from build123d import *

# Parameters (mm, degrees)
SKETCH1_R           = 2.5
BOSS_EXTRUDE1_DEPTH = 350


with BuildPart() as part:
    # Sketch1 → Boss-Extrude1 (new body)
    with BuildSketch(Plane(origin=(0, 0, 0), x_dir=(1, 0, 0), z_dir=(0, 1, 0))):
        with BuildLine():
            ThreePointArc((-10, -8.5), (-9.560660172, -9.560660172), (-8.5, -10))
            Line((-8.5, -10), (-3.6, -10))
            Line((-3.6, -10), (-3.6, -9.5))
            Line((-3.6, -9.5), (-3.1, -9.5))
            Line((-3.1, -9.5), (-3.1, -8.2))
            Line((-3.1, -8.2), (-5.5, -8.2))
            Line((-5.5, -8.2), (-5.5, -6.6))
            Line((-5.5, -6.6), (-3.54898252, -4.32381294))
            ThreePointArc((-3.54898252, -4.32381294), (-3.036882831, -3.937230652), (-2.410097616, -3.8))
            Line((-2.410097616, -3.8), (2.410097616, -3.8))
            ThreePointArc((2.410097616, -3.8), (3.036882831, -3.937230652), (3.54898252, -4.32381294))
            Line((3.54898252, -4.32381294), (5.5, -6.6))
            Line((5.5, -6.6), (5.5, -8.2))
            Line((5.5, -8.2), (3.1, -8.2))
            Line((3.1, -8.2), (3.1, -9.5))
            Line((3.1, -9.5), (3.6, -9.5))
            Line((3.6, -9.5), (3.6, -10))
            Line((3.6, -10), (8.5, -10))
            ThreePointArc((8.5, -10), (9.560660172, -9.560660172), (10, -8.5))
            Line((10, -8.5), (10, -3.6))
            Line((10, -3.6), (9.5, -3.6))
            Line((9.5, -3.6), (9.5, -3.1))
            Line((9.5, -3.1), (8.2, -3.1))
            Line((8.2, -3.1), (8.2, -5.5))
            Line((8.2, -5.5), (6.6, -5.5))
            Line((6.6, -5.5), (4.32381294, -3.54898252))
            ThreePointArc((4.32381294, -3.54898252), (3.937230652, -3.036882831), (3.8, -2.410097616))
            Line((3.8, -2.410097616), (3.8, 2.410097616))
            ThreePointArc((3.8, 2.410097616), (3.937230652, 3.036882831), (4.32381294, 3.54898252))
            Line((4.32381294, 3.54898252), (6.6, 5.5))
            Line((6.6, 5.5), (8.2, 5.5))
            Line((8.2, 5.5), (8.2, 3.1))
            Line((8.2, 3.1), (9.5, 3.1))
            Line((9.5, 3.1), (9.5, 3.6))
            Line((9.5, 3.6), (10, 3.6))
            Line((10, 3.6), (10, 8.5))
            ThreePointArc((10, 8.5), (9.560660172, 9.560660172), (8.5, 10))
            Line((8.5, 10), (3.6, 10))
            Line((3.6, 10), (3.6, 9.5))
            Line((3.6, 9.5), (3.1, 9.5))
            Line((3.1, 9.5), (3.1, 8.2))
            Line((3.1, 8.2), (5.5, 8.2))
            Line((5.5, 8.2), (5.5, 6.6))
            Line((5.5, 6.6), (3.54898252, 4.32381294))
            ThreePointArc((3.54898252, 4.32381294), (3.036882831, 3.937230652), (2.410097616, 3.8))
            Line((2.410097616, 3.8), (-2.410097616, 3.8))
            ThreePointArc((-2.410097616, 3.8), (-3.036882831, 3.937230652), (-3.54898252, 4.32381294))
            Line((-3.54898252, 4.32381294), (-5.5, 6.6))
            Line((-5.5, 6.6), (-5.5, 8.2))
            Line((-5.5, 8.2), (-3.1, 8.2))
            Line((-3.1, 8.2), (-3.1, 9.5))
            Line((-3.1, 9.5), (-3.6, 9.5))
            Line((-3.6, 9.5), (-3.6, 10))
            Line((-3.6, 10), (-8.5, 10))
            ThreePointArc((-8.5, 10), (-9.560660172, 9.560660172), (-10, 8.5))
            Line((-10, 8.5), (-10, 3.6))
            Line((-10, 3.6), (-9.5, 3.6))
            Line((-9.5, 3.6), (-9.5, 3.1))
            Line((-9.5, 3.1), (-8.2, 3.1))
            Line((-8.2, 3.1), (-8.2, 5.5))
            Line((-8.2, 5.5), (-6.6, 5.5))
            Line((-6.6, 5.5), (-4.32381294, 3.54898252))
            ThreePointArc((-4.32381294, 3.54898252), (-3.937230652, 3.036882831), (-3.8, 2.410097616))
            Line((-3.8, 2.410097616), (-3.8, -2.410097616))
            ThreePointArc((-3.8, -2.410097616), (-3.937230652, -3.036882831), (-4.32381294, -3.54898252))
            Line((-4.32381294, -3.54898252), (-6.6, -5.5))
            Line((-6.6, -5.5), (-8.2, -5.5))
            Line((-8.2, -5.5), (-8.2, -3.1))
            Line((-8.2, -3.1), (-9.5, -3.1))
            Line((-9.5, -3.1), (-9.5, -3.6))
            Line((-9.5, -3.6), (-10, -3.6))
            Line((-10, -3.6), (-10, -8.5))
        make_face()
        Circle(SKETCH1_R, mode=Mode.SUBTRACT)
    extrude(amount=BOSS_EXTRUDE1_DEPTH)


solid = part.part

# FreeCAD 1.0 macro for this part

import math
import FreeCAD as App
import Part
import Sketcher
from FreeCAD import Vector
Q = App.Units.Quantity

doc = App.newDocument("Part")
params = doc.addObject("Spreadsheet::Sheet", "Params")
for row, (alias, value) in enumerate([
    ("sketch1_diameter", "5 mm"),
    ("sketch1_radius", "1.5 mm"),
    ("sketch1_width", "4.9 mm"),
    ("sketch1_width2", "0.5 mm"),
    ("sketch1_width3", "2.4 mm"),
    ("pad1_length", "350 mm"),
], start=1):
    params.set(f"A{row}", alias)
    params.set(f"B{row}", "=" + value)
    params.setAlias(f"B{row}", alias)

body = doc.addObject("PartDesign::Body", "Body")

sketch1 = body.newObject("Sketcher::SketchObject", "Sketch")
sketch1.AttachmentSupport = (doc.getObject("XZ_Plane"), [""])
sketch1.MapMode = "FlatFace"
sketch1.addGeometry([
    Part.ArcOfCircle(Part.Circle(Vector(-8.5, 8.5, 0), Vector(0, 0, 1), 1.5), math.radians(90), math.radians(180)),
    Part.LineSegment(Vector(-8.5, 10, 0), Vector(-3.6, 10, 0)),
    Part.LineSegment(Vector(-3.6, 10, 0), Vector(-3.6, 9.5, 0)),
    Part.LineSegment(Vector(-3.6, 9.5, 0), Vector(-3.1, 9.5, 0)),
    Part.LineSegment(Vector(-3.1, 9.5, 0), Vector(-3.1, 8.2, 0)),
    Part.LineSegment(Vector(-3.1, 8.2, 0), Vector(-5.5, 8.2, 0)),
    Part.LineSegment(Vector(-5.5, 8.2, 0), Vector(-5.5, 6.6, 0)),
    Part.LineSegment(Vector(-5.5, 6.6, 0), Vector(-3.5, 4.3, 0)),
    Part.ArcOfCircle(Part.Circle(Vector(-2.4, 5.3, 0), Vector(0, 0, 1), 1.5), math.radians(-139), math.radians(-90)),
    Part.LineSegment(Vector(-2.4, 3.8, 0), Vector(2.4, 3.8, 0)),
    Part.ArcOfCircle(Part.Circle(Vector(2.4, 5.3, 0), Vector(0, 0, 1), 1.5), math.radians(-90), math.radians(-41)),
    Part.LineSegment(Vector(3.5, 4.3, 0), Vector(5.5, 6.6, 0)),
    Part.LineSegment(Vector(5.5, 6.6, 0), Vector(5.5, 8.2, 0)),
    Part.LineSegment(Vector(5.5, 8.2, 0), Vector(3.1, 8.2, 0)),
    Part.LineSegment(Vector(3.1, 8.2, 0), Vector(3.1, 9.5, 0)),
    Part.LineSegment(Vector(3.1, 9.5, 0), Vector(3.6, 9.5, 0)),
    Part.LineSegment(Vector(3.6, 9.5, 0), Vector(3.6, 10, 0)),
    Part.LineSegment(Vector(3.6, 10, 0), Vector(8.5, 10, 0)),
    Part.ArcOfCircle(Part.Circle(Vector(8.5, 8.5, 0), Vector(0, 0, 1), 1.5), math.radians(0), math.radians(90)),
    Part.LineSegment(Vector(10, 8.5, 0), Vector(10, 3.6, 0)),
    Part.LineSegment(Vector(10, 3.6, 0), Vector(9.5, 3.6, 0)),
    Part.LineSegment(Vector(9.5, 3.6, 0), Vector(9.5, 3.1, 0)),
    Part.LineSegment(Vector(9.5, 3.1, 0), Vector(8.2, 3.1, 0)),
    Part.LineSegment(Vector(8.2, 3.1, 0), Vector(8.2, 5.5, 0)),
    Part.LineSegment(Vector(8.2, 5.5, 0), Vector(6.6, 5.5, 0)),
    Part.LineSegment(Vector(6.6, 5.5, 0), Vector(4.3, 3.5, 0)),
    Part.ArcOfCircle(Part.Circle(Vector(5.3, 2.4, 0), Vector(0, 0, 1), 1.5), math.radians(131), math.radians(180)),
    Part.LineSegment(Vector(3.8, 2.4, 0), Vector(3.8, -2.4, 0)),
    Part.ArcOfCircle(Part.Circle(Vector(5.3, -2.4, 0), Vector(0, 0, 1), 1.5), math.radians(180), math.radians(229)),
    Part.LineSegment(Vector(4.3, -3.5, 0), Vector(6.6, -5.5, 0)),
    Part.LineSegment(Vector(6.6, -5.5, 0), Vector(8.2, -5.5, 0)),
    Part.LineSegment(Vector(8.2, -5.5, 0), Vector(8.2, -3.1, 0)),
    Part.LineSegment(Vector(8.2, -3.1, 0), Vector(9.5, -3.1, 0)),
    Part.LineSegment(Vector(9.5, -3.1, 0), Vector(9.5, -3.6, 0)),
    Part.LineSegment(Vector(9.5, -3.6, 0), Vector(10, -3.6, 0)),
    Part.LineSegment(Vector(10, -3.6, 0), Vector(10, -8.5, 0)),
    Part.ArcOfCircle(Part.Circle(Vector(8.5, -8.5, 0), Vector(0, 0, 1), 1.5), math.radians(-90), math.radians(0)),
    Part.LineSegment(Vector(8.5, -10, 0), Vector(3.6, -10, 0)),
    Part.LineSegment(Vector(3.6, -10, 0), Vector(3.6, -9.5, 0)),
    Part.LineSegment(Vector(3.6, -9.5, 0), Vector(3.1, -9.5, 0)),
    Part.LineSegment(Vector(3.1, -9.5, 0), Vector(3.1, -8.2, 0)),
    Part.LineSegment(Vector(3.1, -8.2, 0), Vector(5.5, -8.2, 0)),
    Part.LineSegment(Vector(5.5, -8.2, 0), Vector(5.5, -6.6, 0)),
    Part.LineSegment(Vector(5.5, -6.6, 0), Vector(3.5, -4.3, 0)),
    Part.ArcOfCircle(Part.Circle(Vector(2.4, -5.3, 0), Vector(0, 0, 1), 1.5), math.radians(41), math.radians(90)),
    Part.LineSegment(Vector(2.4, -3.8, 0), Vector(-2.4, -3.8, 0)),
    Part.ArcOfCircle(Part.Circle(Vector(-2.4, -5.3, 0), Vector(0, 0, 1), 1.5), math.radians(90), math.radians(139)),
    Part.LineSegment(Vector(-3.5, -4.3, 0), Vector(-5.5, -6.6, 0)),
    Part.LineSegment(Vector(-5.5, -6.6, 0), Vector(-5.5, -8.2, 0)),
    Part.LineSegment(Vector(-5.5, -8.2, 0), Vector(-3.1, -8.2, 0)),
    Part.LineSegment(Vector(-3.1, -8.2, 0), Vector(-3.1, -9.5, 0)),
    Part.LineSegment(Vector(-3.1, -9.5, 0), Vector(-3.6, -9.5, 0)),
    Part.LineSegment(Vector(-3.6, -9.5, 0), Vector(-3.6, -10, 0)),
    Part.LineSegment(Vector(-3.6, -10, 0), Vector(-8.5, -10, 0)),
    Part.ArcOfCircle(Part.Circle(Vector(-8.5, -8.5, 0), Vector(0, 0, 1), 1.5), math.radians(180), math.radians(270)),
    Part.LineSegment(Vector(-10, -8.5, 0), Vector(-10, -3.6, 0)),
    Part.LineSegment(Vector(-10, -3.6, 0), Vector(-9.5, -3.6, 0)),
    Part.LineSegment(Vector(-9.5, -3.6, 0), Vector(-9.5, -3.1, 0)),
    Part.LineSegment(Vector(-9.5, -3.1, 0), Vector(-8.2, -3.1, 0)),
    Part.LineSegment(Vector(-8.2, -3.1, 0), Vector(-8.2, -5.5, 0)),
    Part.LineSegment(Vector(-8.2, -5.5, 0), Vector(-6.6, -5.5, 0)),
    Part.LineSegment(Vector(-6.6, -5.5, 0), Vector(-4.3, -3.5, 0)),
    Part.ArcOfCircle(Part.Circle(Vector(-5.3, -2.4, 0), Vector(0, 0, 1), 1.5), math.radians(-49), math.radians(0)),
    Part.LineSegment(Vector(-3.8, -2.4, 0), Vector(-3.8, 2.4, 0)),
    Part.ArcOfCircle(Part.Circle(Vector(-5.3, 2.4, 0), Vector(0, 0, 1), 1.5), math.radians(0), math.radians(49)),
    Part.LineSegment(Vector(-4.3, 3.5, 0), Vector(-6.6, 5.5, 0)),
    Part.LineSegment(Vector(-6.6, 5.5, 0), Vector(-8.2, 5.5, 0)),
    Part.LineSegment(Vector(-8.2, 5.5, 0), Vector(-8.2, 3.1, 0)),
    Part.LineSegment(Vector(-8.2, 3.1, 0), Vector(-9.5, 3.1, 0)),
    Part.LineSegment(Vector(-9.5, 3.1, 0), Vector(-9.5, 3.6, 0)),
    Part.LineSegment(Vector(-9.5, 3.6, 0), Vector(-10, 3.6, 0)),
    Part.LineSegment(Vector(-10, 3.6, 0), Vector(-10, 8.5, 0)),
    Part.Circle(Vector(0, 0, 0), Vector(0, 0, 1), 2.5),
], False)
sketch1.addConstraint([
    Sketcher.Constraint("Tangent", 0, 1, 1, 1),
    Sketcher.Constraint("Coincident", 1, 2, 2, 1),
    Sketcher.Constraint("Coincident", 2, 2, 3, 1),
    Sketcher.Constraint("Coincident", 3, 2, 4, 1),
    Sketcher.Constraint("Coincident", 4, 2, 5, 1),
    Sketcher.Constraint("Coincident", 5, 2, 6, 1),
    Sketcher.Constraint("Coincident", 6, 2, 7, 1),
    Sketcher.Constraint("Tangent", 7, 2, 8, 1),
    Sketcher.Constraint("Tangent", 8, 2, 9, 1),
    Sketcher.Constraint("Tangent", 9, 2, 10, 1),
    Sketcher.Constraint("Tangent", 10, 2, 11, 1),
    Sketcher.Constraint("Coincident", 11, 2, 12, 1),
    Sketcher.Constraint("Coincident", 12, 2, 13, 1),
    Sketcher.Constraint("Coincident", 13, 2, 14, 1),
    Sketcher.Constraint("Coincident", 14, 2, 15, 1),
    Sketcher.Constraint("Coincident", 15, 2, 16, 1),
    Sketcher.Constraint("Coincident", 16, 2, 17, 1),
    Sketcher.Constraint("Tangent", 17, 2, 18, 2),
    Sketcher.Constraint("Tangent", 18, 1, 19, 1),
    Sketcher.Constraint("Coincident", 19, 2, 20, 1),
    Sketcher.Constraint("Coincident", 20, 2, 21, 1),
    Sketcher.Constraint("Coincident", 21, 2, 22, 1),
    Sketcher.Constraint("Coincident", 22, 2, 23, 1),
    Sketcher.Constraint("Coincident", 23, 2, 24, 1),
    Sketcher.Constraint("Coincident", 24, 2, 25, 1),
    Sketcher.Constraint("Tangent", 25, 2, 26, 1),
    Sketcher.Constraint("Tangent", 26, 2, 27, 1),
    Sketcher.Constraint("Tangent", 27, 2, 28, 1),
    Sketcher.Constraint("Tangent", 28, 2, 29, 1),
    Sketcher.Constraint("Coincident", 29, 2, 30, 1),
    Sketcher.Constraint("Coincident", 30, 2, 31, 1),
    Sketcher.Constraint("Coincident", 31, 2, 32, 1),
    Sketcher.Constraint("Coincident", 32, 2, 33, 1),
    Sketcher.Constraint("Coincident", 33, 2, 34, 1),
    Sketcher.Constraint("Coincident", 34, 2, 35, 1),
    Sketcher.Constraint("Tangent", 35, 2, 36, 2),
    Sketcher.Constraint("Tangent", 36, 1, 37, 1),
    Sketcher.Constraint("Coincident", 37, 2, 38, 1),
    Sketcher.Constraint("Coincident", 38, 2, 39, 1),
    Sketcher.Constraint("Coincident", 39, 2, 40, 1),
    Sketcher.Constraint("Coincident", 40, 2, 41, 1),
    Sketcher.Constraint("Coincident", 41, 2, 42, 1),
    Sketcher.Constraint("Coincident", 42, 2, 43, 1),
    Sketcher.Constraint("Tangent", 43, 2, 44, 1),
    Sketcher.Constraint("Tangent", 44, 2, 45, 1),
    Sketcher.Constraint("Tangent", 45, 2, 46, 1),
    Sketcher.Constraint("Tangent", 46, 2, 47, 1),
    Sketcher.Constraint("Coincident", 47, 2, 48, 1),
    Sketcher.Constraint("Coincident", 48, 2, 49, 1),
    Sketcher.Constraint("Coincident", 49, 2, 50, 1),
    Sketcher.Constraint("Coincident", 50, 2, 51, 1),
    Sketcher.Constraint("Coincident", 51, 2, 52, 1),
    Sketcher.Constraint("Coincident", 52, 2, 53, 1),
    Sketcher.Constraint("Tangent", 53, 2, 54, 2),
    Sketcher.Constraint("Tangent", 54, 1, 55, 1),
    Sketcher.Constraint("Coincident", 55, 2, 56, 1),
    Sketcher.Constraint("Coincident", 56, 2, 57, 1),
    Sketcher.Constraint("Coincident", 57, 2, 58, 1),
    Sketcher.Constraint("Coincident", 58, 2, 59, 1),
    Sketcher.Constraint("Coincident", 59, 2, 60, 1),
    Sketcher.Constraint("Coincident", 60, 2, 61, 1),
    Sketcher.Constraint("Tangent", 61, 2, 62, 1),
    Sketcher.Constraint("Tangent", 62, 2, 63, 1),
    Sketcher.Constraint("Tangent", 63, 2, 64, 1),
    Sketcher.Constraint("Tangent", 64, 2, 65, 1),
    Sketcher.Constraint("Coincident", 65, 2, 66, 1),
    Sketcher.Constraint("Coincident", 66, 2, 67, 1),
    Sketcher.Constraint("Coincident", 67, 2, 68, 1),
    Sketcher.Constraint("Coincident", 68, 2, 69, 1),
    Sketcher.Constraint("Coincident", 69, 2, 70, 1),
    Sketcher.Constraint("Coincident", 70, 2, 71, 1),
    Sketcher.Constraint("Tangent", 71, 2, 0, 2),
    Sketcher.Constraint("Horizontal", 1),
    Sketcher.Constraint("Vertical", 2),
    Sketcher.Constraint("Horizontal", 3),
    Sketcher.Constraint("Vertical", 4),
    Sketcher.Constraint("Horizontal", 5),
    Sketcher.Constraint("Vertical", 6),
    Sketcher.Constraint("Horizontal", 9),
    Sketcher.Constraint("Vertical", 12),
    Sketcher.Constraint("Horizontal", 13),
    Sketcher.Constraint("Vertical", 14),
    Sketcher.Constraint("Horizontal", 15),
    Sketcher.Constraint("Vertical", 16),
    Sketcher.Constraint("Horizontal", 17),
    Sketcher.Constraint("Vertical", 19),
    Sketcher.Constraint("Horizontal", 20),
    Sketcher.Constraint("Vertical", 21),
    Sketcher.Constraint("Horizontal", 22),
    Sketcher.Constraint("Vertical", 23),
    Sketcher.Constraint("Horizontal", 24),
    Sketcher.Constraint("Vertical", 27),
    Sketcher.Constraint("Horizontal", 30),
    Sketcher.Constraint("Vertical", 31),
    Sketcher.Constraint("Horizontal", 32),
    Sketcher.Constraint("Vertical", 33),
    Sketcher.Constraint("Horizontal", 34),
    Sketcher.Constraint("Vertical", 35),
    Sketcher.Constraint("Horizontal", 37),
    Sketcher.Constraint("Vertical", 38),
    Sketcher.Constraint("Horizontal", 39),
    Sketcher.Constraint("Vertical", 40),
    Sketcher.Constraint("Horizontal", 41),
    Sketcher.Constraint("Vertical", 42),
    Sketcher.Constraint("Horizontal", 45),
    Sketcher.Constraint("Vertical", 48),
    Sketcher.Constraint("Horizontal", 49),
    Sketcher.Constraint("Vertical", 50),
    Sketcher.Constraint("Horizontal", 51),
    Sketcher.Constraint("Vertical", 52),
    Sketcher.Constraint("Horizontal", 53),
    Sketcher.Constraint("Vertical", 55),
    Sketcher.Constraint("Horizontal", 56),
    Sketcher.Constraint("Vertical", 57),
    Sketcher.Constraint("Horizontal", 58),
    Sketcher.Constraint("Vertical", 59),
    Sketcher.Constraint("Horizontal", 60),
    Sketcher.Constraint("Vertical", 63),
    Sketcher.Constraint("Horizontal", 66),
    Sketcher.Constraint("Vertical", 67),
    Sketcher.Constraint("Horizontal", 68),
    Sketcher.Constraint("Vertical", 69),
    Sketcher.Constraint("Horizontal", 70),
    Sketcher.Constraint("Vertical", 71),
    Sketcher.Constraint("Coincident", 72, 3, -1, 1),
    Sketcher.Constraint("Equal", 0, 8),
    Sketcher.Constraint("Equal", 8, 10),
    Sketcher.Constraint("Equal", 10, 18),
    Sketcher.Constraint("Equal", 18, 26),
    Sketcher.Constraint("Equal", 26, 28),
    Sketcher.Constraint("Equal", 28, 36),
    Sketcher.Constraint("Equal", 36, 44),
    Sketcher.Constraint("Equal", 44, 46),
    Sketcher.Constraint("Equal", 46, 54),
    Sketcher.Constraint("Equal", 54, 62),
    Sketcher.Constraint("Equal", 62, 64),
    Sketcher.Constraint("Symmetric", 0, 3, 36, 3, -1, 1),
    Sketcher.Constraint("Symmetric", 8, 3, 44, 3, -1, 1),
    Sketcher.Constraint("Symmetric", 18, 3, 54, 3, -1, 1),
    Sketcher.Constraint("Symmetric", 26, 3, 62, 3, -1, 1),
    Sketcher.Constraint("Symmetric", 2, 2, 38, 2, -1, 1),
    Sketcher.Constraint("Symmetric", 4, 2, 40, 2, -1, 1),
    Sketcher.Constraint("Symmetric", 6, 2, 42, 2, -1, 1),
    Sketcher.Constraint("Symmetric", 10, 2, 46, 2, -1, 1),
    Sketcher.Constraint("Symmetric", 12, 2, 48, 2, -1, 1),
    Sketcher.Constraint("Symmetric", 14, 2, 50, 2, -1, 1),
    Sketcher.Constraint("Symmetric", 20, 2, 56, 2, -1, 1),
    Sketcher.Constraint("Symmetric", 22, 2, 58, 2, -1, 1),
    Sketcher.Constraint("Symmetric", 24, 2, 60, 2, -1, 1),
    Sketcher.Constraint("Symmetric", 28, 2, 64, 2, -1, 1),
    Sketcher.Constraint("Symmetric", 30, 2, 66, 2, -1, 1),
    Sketcher.Constraint("Symmetric", 32, 2, 68, 2, -1, 1),
    Sketcher.Constraint("Symmetric", 0, 3, 18, 3, -2),
    Sketcher.Constraint("Symmetric", 7, 2, 10, 2, -2),
    Sketcher.Constraint("Symmetric", 5, 2, 12, 2, -2),
    Sketcher.Constraint("Symmetric", 3, 2, 14, 2, -2),
    Sketcher.Constraint("Symmetric", 33, 2, 56, 2, -2),
    Sketcher.Constraint("Symmetric", 31, 2, 58, 2, -2),
    Sketcher.Constraint("Symmetric", 29, 2, 60, 2, -2),
    Sketcher.Constraint("Perpendicular", 7, 25),
    Sketcher.Constraint("Perpendicular", 11, 29),
    Sketcher.Constraint("Horizontal", 20, 2, 69, 2),
    Sketcher.Constraint("Vertical", 16, 2, 37, 2),
    Sketcher.Constraint("Vertical", 2, 2, 51, 2),
    Sketcher.Constraint("Equal", 15, 20),
    Sketcher.Constraint("Equal", 70, 2),
    Sketcher.Constraint("Equal", 68, 4),
    Sketcher.Constraint("Equal", 66, 6),
    Sketcher.Constraint("Equal", 53, 19),
    Sketcher.Constraint("Equal", 16, 21),
    Sketcher.Constraint("Equal", 49, 23),
    Sketcher.Constraint("Equal", 45, 27),
    Sketcher.Constraint("Equal", 11, 25),
    Sketcher.Constraint("Diameter", 72, Q("5 mm")),
    Sketcher.Constraint("Radius", 0, Q("1.5 mm")),
    Sketcher.Constraint("DistanceX", 1, 1, 1, 2, Q("4.9 mm")),
    Sketcher.Constraint("DistanceX", 3, 1, 3, 2, Q("0.5 mm")),
    Sketcher.Constraint("DistanceX", 5, 2, 5, 1, Q("2.4 mm")),
    Sketcher.Constraint("DistanceX", 22, 2, 22, 1, Q("1.3 mm")),
    Sketcher.Constraint("DistanceX", 24, 2, 24, 1, Q("1.6 mm")),
    Sketcher.Constraint("DistanceY", -1, 1, 0, 1, Q("10 mm")),
    Sketcher.Constraint("DistanceY", -1, 1, 8, 3, Q("5.3 mm")),
    Sketcher.Constraint("DistanceX", 9, 1, 9, 2, Q("4.820195 mm")),
])
sketch1.setExpression("Constraints[173]", "Params.sketch1_diameter")
sketch1.setExpression("Constraints[174]", "Params.sketch1_radius")
sketch1.setExpression("Constraints[175]", "Params.sketch1_width")
sketch1.setExpression("Constraints[176]", "Params.sketch1_width2")
sketch1.setExpression("Constraints[177]", "Params.sketch1_width3")
pad1 = body.newObject("PartDesign::Pad", "Pad")
pad1.Profile = sketch1
pad1.setExpression("Length", "Params.pad1_length")
pad1.Reversed = True

doc.recompute()
